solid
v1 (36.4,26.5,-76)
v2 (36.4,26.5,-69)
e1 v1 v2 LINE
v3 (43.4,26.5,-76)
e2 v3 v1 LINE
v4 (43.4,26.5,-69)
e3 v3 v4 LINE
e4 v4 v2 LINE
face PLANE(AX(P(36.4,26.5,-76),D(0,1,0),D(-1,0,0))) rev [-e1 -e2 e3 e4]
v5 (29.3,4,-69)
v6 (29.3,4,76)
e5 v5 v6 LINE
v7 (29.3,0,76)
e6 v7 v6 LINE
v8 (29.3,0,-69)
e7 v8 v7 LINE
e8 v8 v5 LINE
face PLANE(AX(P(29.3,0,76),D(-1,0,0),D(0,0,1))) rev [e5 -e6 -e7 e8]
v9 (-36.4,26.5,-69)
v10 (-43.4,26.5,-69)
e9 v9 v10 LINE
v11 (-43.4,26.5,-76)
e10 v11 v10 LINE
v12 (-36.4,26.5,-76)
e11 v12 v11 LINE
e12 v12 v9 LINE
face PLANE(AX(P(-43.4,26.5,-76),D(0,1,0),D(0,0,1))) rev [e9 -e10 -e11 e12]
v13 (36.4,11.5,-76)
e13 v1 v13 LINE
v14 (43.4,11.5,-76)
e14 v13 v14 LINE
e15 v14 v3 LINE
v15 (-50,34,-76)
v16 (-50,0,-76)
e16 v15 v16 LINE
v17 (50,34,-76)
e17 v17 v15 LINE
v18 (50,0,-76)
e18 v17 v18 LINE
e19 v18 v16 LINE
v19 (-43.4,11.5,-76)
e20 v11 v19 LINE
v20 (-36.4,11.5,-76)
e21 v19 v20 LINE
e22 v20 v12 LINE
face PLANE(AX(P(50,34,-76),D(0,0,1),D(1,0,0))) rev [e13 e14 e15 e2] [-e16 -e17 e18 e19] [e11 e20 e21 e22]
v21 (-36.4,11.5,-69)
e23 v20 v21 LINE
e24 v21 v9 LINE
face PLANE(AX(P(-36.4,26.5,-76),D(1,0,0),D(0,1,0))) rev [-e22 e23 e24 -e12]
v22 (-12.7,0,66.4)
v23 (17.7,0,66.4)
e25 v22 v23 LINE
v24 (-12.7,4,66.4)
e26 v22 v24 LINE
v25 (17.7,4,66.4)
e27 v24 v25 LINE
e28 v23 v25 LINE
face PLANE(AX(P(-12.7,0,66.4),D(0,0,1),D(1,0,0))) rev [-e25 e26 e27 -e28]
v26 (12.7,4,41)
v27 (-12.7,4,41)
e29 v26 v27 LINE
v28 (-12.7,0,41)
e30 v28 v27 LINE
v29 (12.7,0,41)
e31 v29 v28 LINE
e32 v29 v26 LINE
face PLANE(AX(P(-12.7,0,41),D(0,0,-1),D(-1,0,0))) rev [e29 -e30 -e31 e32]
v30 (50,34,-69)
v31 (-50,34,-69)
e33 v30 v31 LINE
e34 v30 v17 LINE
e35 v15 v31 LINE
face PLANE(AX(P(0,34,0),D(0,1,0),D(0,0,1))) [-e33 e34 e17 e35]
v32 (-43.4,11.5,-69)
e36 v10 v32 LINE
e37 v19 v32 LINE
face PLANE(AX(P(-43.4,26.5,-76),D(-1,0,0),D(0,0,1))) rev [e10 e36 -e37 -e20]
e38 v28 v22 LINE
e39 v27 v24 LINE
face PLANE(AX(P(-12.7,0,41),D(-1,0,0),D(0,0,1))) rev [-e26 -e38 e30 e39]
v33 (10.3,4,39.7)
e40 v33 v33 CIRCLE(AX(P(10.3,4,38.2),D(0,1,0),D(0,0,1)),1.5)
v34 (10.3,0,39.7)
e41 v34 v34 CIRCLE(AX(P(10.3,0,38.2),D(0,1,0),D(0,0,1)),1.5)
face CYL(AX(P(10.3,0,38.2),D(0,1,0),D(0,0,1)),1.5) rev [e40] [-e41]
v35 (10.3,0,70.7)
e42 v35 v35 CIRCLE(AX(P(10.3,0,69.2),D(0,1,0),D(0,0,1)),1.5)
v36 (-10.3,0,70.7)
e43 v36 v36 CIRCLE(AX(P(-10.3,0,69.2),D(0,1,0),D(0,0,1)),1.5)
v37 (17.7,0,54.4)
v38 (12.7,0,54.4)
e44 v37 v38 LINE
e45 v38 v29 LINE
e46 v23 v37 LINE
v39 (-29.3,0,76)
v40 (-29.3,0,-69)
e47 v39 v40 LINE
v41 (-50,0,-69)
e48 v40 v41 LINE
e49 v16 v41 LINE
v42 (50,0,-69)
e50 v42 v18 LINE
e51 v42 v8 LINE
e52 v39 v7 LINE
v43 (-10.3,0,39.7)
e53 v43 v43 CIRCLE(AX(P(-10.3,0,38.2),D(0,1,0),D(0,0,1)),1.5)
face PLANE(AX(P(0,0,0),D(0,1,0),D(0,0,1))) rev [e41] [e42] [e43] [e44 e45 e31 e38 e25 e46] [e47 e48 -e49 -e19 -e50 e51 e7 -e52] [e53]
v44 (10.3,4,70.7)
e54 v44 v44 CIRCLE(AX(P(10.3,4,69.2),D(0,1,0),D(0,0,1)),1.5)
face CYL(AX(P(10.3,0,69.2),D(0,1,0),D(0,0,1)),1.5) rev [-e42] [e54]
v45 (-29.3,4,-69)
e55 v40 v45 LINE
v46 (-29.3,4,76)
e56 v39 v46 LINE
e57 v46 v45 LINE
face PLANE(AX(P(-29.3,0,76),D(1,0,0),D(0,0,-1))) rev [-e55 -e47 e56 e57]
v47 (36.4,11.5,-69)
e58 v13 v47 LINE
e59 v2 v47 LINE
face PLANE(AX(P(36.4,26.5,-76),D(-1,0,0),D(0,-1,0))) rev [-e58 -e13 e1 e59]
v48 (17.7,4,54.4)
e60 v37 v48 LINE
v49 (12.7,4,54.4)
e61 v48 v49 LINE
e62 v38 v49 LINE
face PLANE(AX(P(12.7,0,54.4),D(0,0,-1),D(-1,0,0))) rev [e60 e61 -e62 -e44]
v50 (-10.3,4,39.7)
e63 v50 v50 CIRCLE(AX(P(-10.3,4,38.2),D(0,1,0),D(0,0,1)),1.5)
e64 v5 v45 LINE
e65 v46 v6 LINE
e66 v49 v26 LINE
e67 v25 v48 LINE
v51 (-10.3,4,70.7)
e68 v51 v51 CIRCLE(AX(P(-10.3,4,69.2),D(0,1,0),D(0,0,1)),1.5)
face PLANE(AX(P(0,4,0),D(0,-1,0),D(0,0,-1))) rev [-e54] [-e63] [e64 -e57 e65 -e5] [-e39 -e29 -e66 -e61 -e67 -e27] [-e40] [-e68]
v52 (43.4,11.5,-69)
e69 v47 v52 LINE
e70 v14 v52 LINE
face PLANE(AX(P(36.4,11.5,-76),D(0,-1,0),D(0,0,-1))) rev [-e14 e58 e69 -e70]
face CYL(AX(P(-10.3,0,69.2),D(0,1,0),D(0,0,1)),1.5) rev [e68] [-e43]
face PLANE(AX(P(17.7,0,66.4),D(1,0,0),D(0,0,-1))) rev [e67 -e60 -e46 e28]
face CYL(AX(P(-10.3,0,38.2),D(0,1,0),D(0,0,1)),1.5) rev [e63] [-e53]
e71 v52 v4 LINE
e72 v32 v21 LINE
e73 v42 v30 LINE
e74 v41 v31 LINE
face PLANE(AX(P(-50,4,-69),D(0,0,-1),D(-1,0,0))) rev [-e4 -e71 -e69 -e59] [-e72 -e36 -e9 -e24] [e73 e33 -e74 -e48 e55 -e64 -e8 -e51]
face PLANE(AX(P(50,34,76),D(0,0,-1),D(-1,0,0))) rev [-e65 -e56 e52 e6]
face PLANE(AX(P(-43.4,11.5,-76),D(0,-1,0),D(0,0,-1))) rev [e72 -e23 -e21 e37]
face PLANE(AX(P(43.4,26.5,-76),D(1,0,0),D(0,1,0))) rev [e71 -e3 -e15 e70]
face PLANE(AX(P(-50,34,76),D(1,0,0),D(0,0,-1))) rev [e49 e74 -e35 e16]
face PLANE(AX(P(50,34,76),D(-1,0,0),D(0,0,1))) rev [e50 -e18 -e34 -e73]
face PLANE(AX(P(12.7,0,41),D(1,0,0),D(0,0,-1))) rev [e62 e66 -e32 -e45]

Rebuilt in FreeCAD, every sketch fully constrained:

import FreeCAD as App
import Part
import Sketcher
Q = App.Units.Quantity

doc = App.newDocument("Part")
body = doc.addObject("PartDesign::Body", "Body")

sketch1 = doc.addObject("Sketcher::SketchObject", "Sketch")
body.addObject(sketch1)
sketch1.AttachmentSupport = (doc.XZ_Plane, [""])
sketch1.MapMode = "FlatFace"
sketch1.addGeometry(Part.LineSegment(App.Vector(-50, -76, 0), App.Vector(-50, 76, 0)), False)
sketch1.addGeometry(Part.LineSegment(App.Vector(-50, 76, 0), App.Vector(50, 76, 0)), False)
sketch1.addGeometry(Part.LineSegment(App.Vector(50, 76, 0), App.Vector(50, -76, 0)), False)
sketch1.addGeometry(Part.LineSegment(App.Vector(50, -76, 0), App.Vector(-50, -76, 0)), False)
sketch1.addConstraint(Sketcher.Constraint("Coincident", 0, 2, 1, 1))
sketch1.addConstraint(Sketcher.Constraint("Coincident", 1, 2, 2, 1))
sketch1.addConstraint(Sketcher.Constraint("Coincident", 2, 2, 3, 1))
sketch1.addConstraint(Sketcher.Constraint("Coincident", 3, 2, 0, 1))
sketch1.addConstraint(Sketcher.Constraint("Vertical", 0))
sketch1.addConstraint(Sketcher.Constraint("Horizontal", 1))
sketch1.addConstraint(Sketcher.Constraint("Vertical", 2))
sketch1.addConstraint(Sketcher.Constraint("Horizontal", 3))
sketch1.addConstraint(Sketcher.Constraint("Symmetric", 0, 2, 2, 2, -1, 1))
sketch1.addConstraint(Sketcher.Constraint("DistanceX", 1, 1, 1, 2, Q("100 mm")))
sketch1.addConstraint(Sketcher.Constraint("DistanceY", 0, 1, 0, 2, Q("152 mm")))
pad1 = doc.addObject("PartDesign::Pad", "Pad")
body.addObject(pad1)
pad1.Profile = sketch1
pad1.Length = 34
pad1.Reversed = True

sketch2 = doc.addObject("Sketcher::SketchObject", "Sketch001")
body.addObject(sketch2)
sketch2.AttachmentSupport = (doc.XZ_Plane, [""])
sketch2.MapMode = "FlatFace"
sketch2.AttachmentOffset = App.Placement(App.Vector(0, 0, -34), App.Rotation())
sketch2.addGeometry(Part.LineSegment(App.Vector(-50, -69, 0), App.Vector(-50, 76, 0)), False)
sketch2.addGeometry(Part.LineSegment(App.Vector(-50, 76, 0), App.Vector(50, 76, 0)), False)
sketch2.addGeometry(Part.LineSegment(App.Vector(50, 76, 0), App.Vector(50, -69, 0)), False)
sketch2.addGeometry(Part.LineSegment(App.Vector(50, -69, 0), App.Vector(-50, -69, 0)), False)
sketch2.addConstraint(Sketcher.Constraint("Coincident", 0, 2, 1, 1))
sketch2.addConstraint(Sketcher.Constraint("Coincident", 1, 2, 2, 1))
sketch2.addConstraint(Sketcher.Constraint("Coincident", 2, 2, 3, 1))
sketch2.addConstraint(Sketcher.Constraint("Coincident", 3, 2, 0, 1))
sketch2.addConstraint(Sketcher.Constraint("Vertical", 0))
sketch2.addConstraint(Sketcher.Constraint("Horizontal", 1))
sketch2.addConstraint(Sketcher.Constraint("Vertical", 2))
sketch2.addConstraint(Sketcher.Constraint("Horizontal", 3))
sketch2.addConstraint(Sketcher.Constraint("DistanceX", 1, 1, 1, 2, Q("100 mm")))
sketch2.addConstraint(Sketcher.Constraint("DistanceY", 0, 1, 0, 2, Q("145 mm")))
sketch2.addConstraint(Sketcher.Constraint("DistanceX", 0, 2, -1, 1, Q("50 mm")))
sketch2.addConstraint(Sketcher.Constraint("DistanceY", -1, 1, 0, 2, Q("76 mm")))
pocket1 = doc.addObject("PartDesign::Pocket", "Pocket")
body.addObject(pocket1)
pocket1.Profile = sketch2
pocket1.Length = 30
pocket1.Reversed = True

sketch3 = doc.addObject("Sketcher::SketchObject", "Sketch002")
body.addObject(sketch3)
sketch3.AttachmentSupport = (doc.XY_Plane, [""])
sketch3.MapMode = "FlatFace"
sketch3.AttachmentOffset = App.Placement(App.Vector(0, 0, -69), App.Rotation())
sketch3.addGeometry(Part.LineSegment(App.Vector(-43.4, 26.5, 0), App.Vector(-43.4, 11.5, 0)), False)
sketch3.addGeometry(Part.LineSegment(App.Vector(-43.4, 11.5, 0), App.Vector(-36.4, 11.5, 0)), False)
sketch3.addGeometry(Part.LineSegment(App.Vector(-36.4, 11.5, 0), App.Vector(-36.4, 26.5, 0)), False)
sketch3.addGeometry(Part.LineSegment(App.Vector(-36.4, 26.5, 0), App.Vector(-43.4, 26.5, 0)), False)
sketch3.addGeometry(Part.LineSegment(App.Vector(36.4, 26.5, 0), App.Vector(36.4, 11.5, 0)), False)
sketch3.addGeometry(Part.LineSegment(App.Vector(36.4, 11.5, 0), App.Vector(43.4, 11.5, 0)), False)
sketch3.addGeometry(Part.LineSegment(App.Vector(43.4, 11.5, 0), App.Vector(43.4, 26.5, 0)), False)
sketch3.addGeometry(Part.LineSegment(App.Vector(43.4, 26.5, 0), App.Vector(36.4, 26.5, 0)), False)
sketch3.addConstraint(Sketcher.Constraint("Coincident", 0, 2, 1, 1))
sketch3.addConstraint(Sketcher.Constraint("Coincident", 1, 2, 2, 1))
sketch3.addConstraint(Sketcher.Constraint("Coincident", 2, 2, 3, 1))
sketch3.addConstraint(Sketcher.Constraint("Coincident", 3, 2, 0, 1))
sketch3.addConstraint(Sketcher.Constraint("Coincident", 4, 2, 5, 1))
sketch3.addConstraint(Sketcher.Constraint("Coincident", 5, 2, 6, 1))
sketch3.addConstraint(Sketcher.Constraint("Coincident", 6, 2, 7, 1))
sketch3.addConstraint(Sketcher.Constraint("Coincident", 7, 2, 4, 1))
sketch3.addConstraint(Sketcher.Constraint("Vertical", 0))
sketch3.addConstraint(Sketcher.Constraint("Horizontal", 1))
sketch3.addConstraint(Sketcher.Constraint("Vertical", 2))
sketch3.addConstraint(Sketcher.Constraint("Horizontal", 3))
sketch3.addConstraint(Sketcher.Constraint("Vertical", 4))
sketch3.addConstraint(Sketcher.Constraint("Horizontal", 5))
sketch3.addConstraint(Sketcher.Constraint("Vertical", 6))
sketch3.addConstraint(Sketcher.Constraint("Horizontal", 7))
sketch3.addConstraint(Sketcher.Constraint("Symmetric", 1, 2, 4, 2, -2))
sketch3.addConstraint(Sketcher.Constraint("Symmetric", 3, 2, 6, 2, -2))
sketch3.addConstraint(Sketcher.Constraint("DistanceX", 1, 1, 1, 2, Q("7 mm")))
sketch3.addConstraint(Sketcher.Constraint("DistanceY", 0, 2, 0, 1, Q("15 mm")))
sketch3.addConstraint(Sketcher.Constraint("DistanceX", 0, 2, -1, 1, Q("43.4 mm")))
sketch3.addConstraint(Sketcher.Constraint("DistanceY", -1, 1, 0, 2, Q("11.5 mm")))
pocket2 = doc.addObject("PartDesign::Pocket", "Pocket001")
body.addObject(pocket2)
pocket2.Profile = sketch3
pocket2.Type = "ThroughAll"

sketch4 = doc.addObject("Sketcher::SketchObject", "Sketch003")
body.addObject(sketch4)
sketch4.AttachmentSupport = (doc.XZ_Plane, [""])
sketch4.MapMode = "FlatFace"
sketch4.AttachmentOffset = App.Placement(App.Vector(0, 0, -4), App.Rotation())
sketch4.addGeometry(Part.LineSegment(App.Vector(-50, -69, 0), App.Vector(-50, 76, 0)), False)
sketch4.addGeometry(Part.LineSegment(App.Vector(-50, 76, 0), App.Vector(-29.3, 76, 0)), False)
sketch4.addGeometry(Part.LineSegment(App.Vector(-29.3, 76, 0), App.Vector(-29.3, -69, 0)), False)
sketch4.addGeometry(Part.LineSegment(App.Vector(-29.3, -69, 0), App.Vector(-50, -69, 0)), False)
sketch4.addGeometry(Part.LineSegment(App.Vector(29.3, -69, 0), App.Vector(29.3, 76, 0)), False)
sketch4.addGeometry(Part.LineSegment(App.Vector(29.3, 76, 0), App.Vector(50, 76, 0)), False)
sketch4.addGeometry(Part.LineSegment(App.Vector(50, 76, 0), App.Vector(50, -69, 0)), False)
sketch4.addGeometry(Part.LineSegment(App.Vector(50, -69, 0), App.Vector(29.3, -69, 0)), False)
sketch4.addConstraint(Sketcher.Constraint("Coincident", 0, 2, 1, 1))
sketch4.addConstraint(Sketcher.Constraint("Coincident", 1, 2, 2, 1))
sketch4.addConstraint(Sketcher.Constraint("Coincident", 2, 2, 3, 1))
sketch4.addConstraint(Sketcher.Constraint("Coincident", 3, 2, 0, 1))
sketch4.addConstraint(Sketcher.Constraint("Coincident", 4, 2, 5, 1))
sketch4.addConstraint(Sketcher.Constraint("Coincident", 5, 2, 6, 1))
sketch4.addConstraint(Sketcher.Constraint("Coincident", 6, 2, 7, 1))
sketch4.addConstraint(Sketcher.Constraint("Coincident", 7, 2, 4, 1))
sketch4.addConstraint(Sketcher.Constraint("Vertical", 0))
sketch4.addConstraint(Sketcher.Constraint("Horizontal", 1))
sketch4.addConstraint(Sketcher.Constraint("Vertical", 2))
sketch4.addConstraint(Sketcher.Constraint("Horizontal", 3))
sketch4.addConstraint(Sketcher.Constraint("Vertical", 4))
sketch4.addConstraint(Sketcher.Constraint("Horizontal", 5))
sketch4.addConstraint(Sketcher.Constraint("Vertical", 6))
sketch4.addConstraint(Sketcher.Constraint("Horizontal", 7))
sketch4.addConstraint(Sketcher.Constraint("Symmetric", 1, 2, 4, 2, -2))
sketch4.addConstraint(Sketcher.Constraint("Symmetric", 3, 2, 6, 2, -2))
sketch4.addConstraint(Sketcher.Constraint("DistanceY", 0, 1, 0, 2, Q("145 mm")))
sketch4.addConstraint(Sketcher.Constraint("DistanceX", 1, 1, 1, 2, Q("20.7 mm")))
sketch4.addConstraint(Sketcher.Constraint("DistanceX", 0, 2, -1, 1, Q("50 mm")))
sketch4.addConstraint(Sketcher.Constraint("DistanceY", -1, 1, 0, 2, Q("76 mm")))
pocket3 = doc.addObject("PartDesign::Pocket", "Pocket002")
body.addObject(pocket3)
pocket3.Profile = sketch4
pocket3.Type = "ThroughAll"
pocket3.Reversed = True

sketch5 = doc.addObject("Sketcher::SketchObject", "Sketch004")
body.addObject(sketch5)
sketch5.AttachmentSupport = (doc.XZ_Plane, [""])
sketch5.MapMode = "FlatFace"
sketch5.AttachmentOffset = App.Placement(App.Vector(0, 0, -4), App.Rotation())
sketch5.addGeometry(Part.LineSegment(App.Vector(-12.7, 41, 0), App.Vector(-12.7, 66.4, 0)), False)
sketch5.addGeometry(Part.LineSegment(App.Vector(-12.7, 66.4, 0), App.Vector(12.7, 66.4, 0)), False)
sketch5.addGeometry(Part.LineSegment(App.Vector(12.7, 66.4, 0), App.Vector(12.7, 41, 0)), False)
sketch5.addGeometry(Part.LineSegment(App.Vector(12.7, 41, 0), App.Vector(-12.7, 41, 0)), False)
sketch5.addConstraint(Sketcher.Constraint("Coincident", 0, 2, 1, 1))
sketch5.addConstraint(Sketcher.Constraint("Coincident", 1, 2, 2, 1))
sketch5.addConstraint(Sketcher.Constraint("Coincident", 2, 2, 3, 1))
sketch5.addConstraint(Sketcher.Constraint("Coincident", 3, 2, 0, 1))
sketch5.addConstraint(Sketcher.Constraint("Vertical", 0))
sketch5.addConstraint(Sketcher.Constraint("Horizontal", 1))
sketch5.addConstraint(Sketcher.Constraint("Vertical", 2))
sketch5.addConstraint(Sketcher.Constraint("Horizontal", 3))
sketch5.addConstraint(Sketcher.Constraint("Equal", 3, 0))
sketch5.addConstraint(Sketcher.Constraint("DistanceX", 1, 1, 1, 2, Q("25.4 mm")))
sketch5.addConstraint(Sketcher.Constraint("DistanceY", -1, 1, 2, 2, Q("41 mm")))
sketch5.addConstraint(Sketcher.Constraint("DistanceX", 0, 2, -1, 1, Q("12.7 mm")))
pocket4 = doc.addObject("PartDesign::Pocket", "Pocket003")
body.addObject(pocket4)
pocket4.Profile = sketch5
pocket4.Type = "ThroughAll"
pocket4.Reversed = True

sketch6 = doc.addObject("Sketcher::SketchObject", "Sketch005")
body.addObject(sketch6)
sketch6.AttachmentSupport = (doc.XZ_Plane, [""])
sketch6.MapMode = "FlatFace"
sketch6.AttachmentOffset = App.Placement(App.Vector(0, 0, -4), App.Rotation())
sketch6.addGeometry(Part.Circle(App.Vector(-10.3, 38.2, 0), App.Vector(0, 0, 1), 1.5), False)
sketch6.addGeometry(Part.Circle(App.Vector(10.3, 38.2, 0), App.Vector(0, 0, 1), 1.5), False)
sketch6.addGeometry(Part.Circle(App.Vector(10.3, 69.2, 0), App.Vector(0, 0, 1), 1.5), False)
sketch6.addGeometry(Part.Circle(App.Vector(-10.3, 69.2, 0), App.Vector(0, 0, 1), 1.5), False)
sketch6.addConstraint(Sketcher.Constraint("Equal", 0, 1))
sketch6.addConstraint(Sketcher.Constraint("Equal", 1, 2))
sketch6.addConstraint(Sketcher.Constraint("Equal", 2, 3))
sketch6.addConstraint(Sketcher.Constraint("Symmetric", 0, 3, 1, 3, -2))
sketch6.addConstraint(Sketcher.Constraint("Symmetric", 2, 3, 3, 3, -2))
sketch6.addConstraint(Sketcher.Constraint("Vertical", 1, 3, 2, 3))
sketch6.addConstraint(Sketcher.Constraint("Diameter", 0, Q("3 mm")))
sketch6.addConstraint(Sketcher.Constraint("DistanceY", 1, 3, 2, 3, Q("31 mm")))
sketch6.addConstraint(Sketcher.Constraint("DistanceX", 0, 3, -1, 1, Q("10.3 mm")))
sketch6.addConstraint(Sketcher.Constraint("DistanceY", -1, 1, 0, 3, Q("38.2 mm")))
pocket5 = doc.addObject("PartDesign::Pocket", "Pocket004")
body.addObject(pocket5)
pocket5.Profile = sketch6
pocket5.Type = "ThroughAll"
pocket5.Reversed = True

sketch7 = doc.addObject("Sketcher::SketchObject", "Sketch006")
body.addObject(sketch7)
sketch7.AttachmentSupport = (doc.XZ_Plane, [""])
sketch7.MapMode = "FlatFace"
sketch7.AttachmentOffset = App.Placement(App.Vector(0, 0, -4), App.Rotation())
sketch7.addGeometry(Part.LineSegment(App.Vector(12.7, 54.4, 0), App.Vector(12.7, 66.4, 0)), False)
sketch7.addGeometry(Part.LineSegment(App.Vector(12.7, 66.4, 0), App.Vector(17.7, 66.4, 0)), False)
sketch7.addGeometry(Part.LineSegment(App.Vector(17.7, 66.4, 0), App.Vector(17.7, 54.4, 0)), False)
sketch7.addGeometry(Part.LineSegment(App.Vector(17.7, 54.4, 0), App.Vector(12.7, 54.4, 0)), False)
sketch7.addConstraint(Sketcher.Constraint("Coincident", 0, 2, 1, 1))
sketch7.addConstraint(Sketcher.Constraint("Coincident", 1, 2, 2, 1))
sketch7.addConstraint(Sketcher.Constraint("Coincident", 2, 2, 3, 1))
sketch7.addConstraint(Sketcher.Constraint("Coincident", 3, 2, 0, 1))
sketch7.addConstraint(Sketcher.Constraint("Vertical", 0))
sketch7.addConstraint(Sketcher.Constraint("Horizontal", 1))
sketch7.addConstraint(Sketcher.Constraint("Vertical", 2))
sketch7.addConstraint(Sketcher.Constraint("Horizontal", 3))
sketch7.addConstraint(Sketcher.Constraint("DistanceX", 1, 1, 1, 2, Q("5 mm")))
sketch7.addConstraint(Sketcher.Constraint("DistanceY", 0, 1, 0, 2, Q("12 mm")))
sketch7.addConstraint(Sketcher.Constraint("DistanceX", -1, 1, 0, 2, Q("12.7 mm")))
sketch7.addConstraint(Sketcher.Constraint("DistanceY", -1, 1, 0, 2, Q("66.4 mm")))
pocket6 = doc.addObject("PartDesign::Pocket", "Pocket005")
body.addObject(pocket6)
pocket6.Profile = sketch7
pocket6.Type = "ThroughAll"
pocket6.Reversed = True

doc.recompute()
